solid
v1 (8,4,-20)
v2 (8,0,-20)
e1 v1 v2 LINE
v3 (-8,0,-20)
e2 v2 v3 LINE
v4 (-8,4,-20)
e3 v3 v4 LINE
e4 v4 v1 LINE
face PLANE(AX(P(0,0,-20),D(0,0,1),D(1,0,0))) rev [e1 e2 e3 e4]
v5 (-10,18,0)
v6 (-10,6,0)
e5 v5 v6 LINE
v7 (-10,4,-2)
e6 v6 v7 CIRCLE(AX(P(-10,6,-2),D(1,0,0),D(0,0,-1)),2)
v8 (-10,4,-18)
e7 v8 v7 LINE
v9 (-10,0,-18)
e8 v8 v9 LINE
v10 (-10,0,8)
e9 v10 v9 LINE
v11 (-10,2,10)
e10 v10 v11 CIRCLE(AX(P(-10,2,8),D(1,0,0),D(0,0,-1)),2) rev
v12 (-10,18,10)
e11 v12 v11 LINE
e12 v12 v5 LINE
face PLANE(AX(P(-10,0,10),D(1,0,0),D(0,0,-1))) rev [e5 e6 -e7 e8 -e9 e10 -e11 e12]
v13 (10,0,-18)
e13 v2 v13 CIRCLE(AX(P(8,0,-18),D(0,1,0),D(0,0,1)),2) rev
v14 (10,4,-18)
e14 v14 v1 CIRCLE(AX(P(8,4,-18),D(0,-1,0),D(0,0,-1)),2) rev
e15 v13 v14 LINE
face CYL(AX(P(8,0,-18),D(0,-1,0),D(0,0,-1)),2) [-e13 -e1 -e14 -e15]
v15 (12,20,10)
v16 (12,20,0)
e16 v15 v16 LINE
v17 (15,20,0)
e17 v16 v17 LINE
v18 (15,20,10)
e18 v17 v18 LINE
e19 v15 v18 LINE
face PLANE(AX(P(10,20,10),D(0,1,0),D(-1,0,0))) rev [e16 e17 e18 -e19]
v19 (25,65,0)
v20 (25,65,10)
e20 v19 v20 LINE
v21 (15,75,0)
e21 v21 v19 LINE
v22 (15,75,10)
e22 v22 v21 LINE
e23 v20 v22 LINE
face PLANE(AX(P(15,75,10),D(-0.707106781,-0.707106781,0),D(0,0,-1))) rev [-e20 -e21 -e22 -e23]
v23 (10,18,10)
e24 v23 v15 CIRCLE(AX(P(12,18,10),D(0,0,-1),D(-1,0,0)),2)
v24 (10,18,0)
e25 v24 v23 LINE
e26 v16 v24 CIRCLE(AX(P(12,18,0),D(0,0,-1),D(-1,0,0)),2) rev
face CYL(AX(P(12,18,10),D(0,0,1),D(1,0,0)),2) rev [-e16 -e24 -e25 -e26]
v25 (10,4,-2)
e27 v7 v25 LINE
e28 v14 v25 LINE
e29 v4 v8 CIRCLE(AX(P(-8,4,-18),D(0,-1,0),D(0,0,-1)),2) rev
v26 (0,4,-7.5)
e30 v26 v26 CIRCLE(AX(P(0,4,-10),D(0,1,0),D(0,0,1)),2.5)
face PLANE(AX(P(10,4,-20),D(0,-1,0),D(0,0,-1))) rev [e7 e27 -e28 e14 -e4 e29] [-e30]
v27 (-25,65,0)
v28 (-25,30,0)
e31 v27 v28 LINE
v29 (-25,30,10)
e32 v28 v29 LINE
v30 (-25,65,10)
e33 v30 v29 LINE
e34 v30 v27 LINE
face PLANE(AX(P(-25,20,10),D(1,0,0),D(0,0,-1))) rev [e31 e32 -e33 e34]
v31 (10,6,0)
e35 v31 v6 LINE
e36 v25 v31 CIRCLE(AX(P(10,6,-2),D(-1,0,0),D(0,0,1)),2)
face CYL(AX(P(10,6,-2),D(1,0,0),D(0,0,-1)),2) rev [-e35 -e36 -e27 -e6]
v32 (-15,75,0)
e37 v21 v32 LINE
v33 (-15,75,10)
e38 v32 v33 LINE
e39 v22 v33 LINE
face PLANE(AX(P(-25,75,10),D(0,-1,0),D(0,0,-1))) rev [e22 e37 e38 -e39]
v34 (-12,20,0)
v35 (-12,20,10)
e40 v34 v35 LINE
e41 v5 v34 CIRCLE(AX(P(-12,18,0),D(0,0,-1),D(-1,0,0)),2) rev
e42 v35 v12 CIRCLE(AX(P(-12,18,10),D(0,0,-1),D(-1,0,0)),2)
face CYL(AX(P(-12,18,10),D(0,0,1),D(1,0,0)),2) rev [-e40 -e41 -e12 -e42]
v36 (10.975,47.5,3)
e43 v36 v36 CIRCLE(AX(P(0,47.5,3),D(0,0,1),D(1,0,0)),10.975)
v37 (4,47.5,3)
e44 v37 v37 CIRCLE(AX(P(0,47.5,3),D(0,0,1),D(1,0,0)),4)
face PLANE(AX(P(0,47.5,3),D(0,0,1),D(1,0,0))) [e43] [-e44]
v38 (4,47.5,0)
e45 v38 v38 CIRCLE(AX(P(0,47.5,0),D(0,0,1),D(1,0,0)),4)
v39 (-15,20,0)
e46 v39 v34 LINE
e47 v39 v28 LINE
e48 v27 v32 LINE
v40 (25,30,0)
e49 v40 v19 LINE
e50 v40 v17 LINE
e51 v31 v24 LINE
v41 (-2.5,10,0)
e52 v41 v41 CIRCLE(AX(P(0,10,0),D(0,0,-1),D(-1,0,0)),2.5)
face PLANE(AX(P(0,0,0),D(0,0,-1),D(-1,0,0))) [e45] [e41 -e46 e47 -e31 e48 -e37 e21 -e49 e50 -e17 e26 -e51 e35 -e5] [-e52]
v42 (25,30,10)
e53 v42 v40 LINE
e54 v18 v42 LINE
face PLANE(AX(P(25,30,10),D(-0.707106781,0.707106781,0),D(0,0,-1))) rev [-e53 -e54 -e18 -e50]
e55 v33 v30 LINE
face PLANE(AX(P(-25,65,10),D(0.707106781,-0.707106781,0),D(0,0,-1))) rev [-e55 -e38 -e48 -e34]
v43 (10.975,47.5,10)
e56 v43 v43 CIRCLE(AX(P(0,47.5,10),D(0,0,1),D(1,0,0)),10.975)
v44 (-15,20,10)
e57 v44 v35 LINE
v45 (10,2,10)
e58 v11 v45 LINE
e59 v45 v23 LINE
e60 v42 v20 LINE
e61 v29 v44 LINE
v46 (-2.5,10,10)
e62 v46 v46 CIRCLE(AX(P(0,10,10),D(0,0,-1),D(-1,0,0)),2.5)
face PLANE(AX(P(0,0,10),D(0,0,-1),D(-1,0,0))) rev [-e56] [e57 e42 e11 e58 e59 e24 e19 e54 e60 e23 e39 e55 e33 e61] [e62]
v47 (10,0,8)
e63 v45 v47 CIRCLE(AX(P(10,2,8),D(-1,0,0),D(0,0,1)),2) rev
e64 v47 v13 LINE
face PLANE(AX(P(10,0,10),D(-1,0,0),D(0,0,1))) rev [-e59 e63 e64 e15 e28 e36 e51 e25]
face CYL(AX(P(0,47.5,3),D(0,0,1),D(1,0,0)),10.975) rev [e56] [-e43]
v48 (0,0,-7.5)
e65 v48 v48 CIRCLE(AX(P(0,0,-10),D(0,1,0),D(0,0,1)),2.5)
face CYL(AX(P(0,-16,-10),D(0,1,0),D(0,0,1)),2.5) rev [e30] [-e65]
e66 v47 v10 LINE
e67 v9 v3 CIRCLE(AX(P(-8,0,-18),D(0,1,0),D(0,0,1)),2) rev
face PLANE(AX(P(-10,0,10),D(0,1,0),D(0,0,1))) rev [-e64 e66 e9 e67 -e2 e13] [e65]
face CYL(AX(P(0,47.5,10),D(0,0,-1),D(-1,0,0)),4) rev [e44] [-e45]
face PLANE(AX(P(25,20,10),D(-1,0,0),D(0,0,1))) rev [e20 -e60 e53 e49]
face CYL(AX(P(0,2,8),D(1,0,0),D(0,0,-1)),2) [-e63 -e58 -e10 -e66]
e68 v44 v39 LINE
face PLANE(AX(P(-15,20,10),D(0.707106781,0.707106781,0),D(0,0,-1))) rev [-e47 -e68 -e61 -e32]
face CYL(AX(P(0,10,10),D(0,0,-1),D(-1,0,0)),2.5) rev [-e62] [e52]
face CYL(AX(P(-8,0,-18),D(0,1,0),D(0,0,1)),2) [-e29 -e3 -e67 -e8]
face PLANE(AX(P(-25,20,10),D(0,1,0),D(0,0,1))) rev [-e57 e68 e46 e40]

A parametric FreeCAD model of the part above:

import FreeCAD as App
import Part
import Sketcher


def edges_at(feature, points):
    """Names of the edges that pass closest to the given points."""
    edges = feature.Shape.Edges
    near = lambda p: min(range(len(edges)), key=lambda i: edges[i].distToShape(Part.Vertex(*p))[0])
    return sorted({f"Edge{near(p) + 1}" for p in points})


def add_polygon(sketch, points):
    """Adds a closed chain of lines whose ends are joined by coincident constraints."""
    first, n = sketch.GeometryCount, len(points)
    for a, b in zip(points, points[1:] + points[:1]):
        sketch.addGeometry(Part.LineSegment(App.Vector(*a, 0), App.Vector(*b, 0)), False)
    for i in range(n):
        sketch.addConstraint(Sketcher.Constraint("Coincident", first + i, 2, first + (i + 1) % n, 1))

doc = App.newDocument("Part")
body = doc.addObject("PartDesign::Body", "Body")

sketch1 = body.newObject("Sketcher::SketchObject", "Sketch")
sketch1.AttachmentSupport = (doc.getObject("XY_Plane"), [""])
sketch1.MapMode = "FlatFace"
add_polygon(sketch1, [(-25, 20), (-10, 20), (-10, 0), (10, 0), (10, 20), (25, 20), (25, 75), (-25, 75)])
sketch1.addGeometry(Part.Circle(App.Vector(0, 47.5, 0), App.Vector(0, 0, 1), 4), False)
sketch1.addConstraint(Sketcher.Constraint("Horizontal", 0))
sketch1.addConstraint(Sketcher.Constraint("Vertical", 1))
sketch1.addConstraint(Sketcher.Constraint("Horizontal", 2))
sketch1.addConstraint(Sketcher.Constraint("Vertical", 3))
sketch1.addConstraint(Sketcher.Constraint("Horizontal", 4))
sketch1.addConstraint(Sketcher.Constraint("Vertical", 5))
sketch1.addConstraint(Sketcher.Constraint("Horizontal", 6))
sketch1.addConstraint(Sketcher.Constraint("Vertical", 7))
sketch1.addConstraint(Sketcher.Constraint("Symmetric", 1, 2, 2, 2, -1, 1))
sketch1.addConstraint(Sketcher.Constraint("Symmetric", 4, 2, 7, 2, -2))
sketch1.addConstraint(Sketcher.Constraint("PointOnObject", 8, 3, -2))
sketch1.addConstraint(Sketcher.Constraint("Equal", 2, 1))
sketch1.addConstraint(Sketcher.Constraint("Diameter", 8, 8.0))
sketch1.addConstraint(Sketcher.Constraint("DistanceX", 0, 1, 0, 2, 15.0))
sketch1.addConstraint(Sketcher.Constraint("DistanceX", 2, 1, 2, 2, 20.0))
sketch1.addConstraint(Sketcher.Constraint("DistanceY", 5, 1, 5, 2, 55.0))
sketch1.addConstraint(Sketcher.Constraint("DistanceY", -1, 1, 8, 3, 47.5))
pad1 = body.newObject("PartDesign::Pad", "Pad")
pad1.Profile = sketch1
pad1.Length = 10
doc.recompute()

chamfer = body.newObject("PartDesign::Chamfer", "Chamfer")
chamfer.Base = (pad1, edges_at(pad1, [
    (25, 20, 5),
    (-25, 20, 5),
    (-25, 75, 5),
    (25, 75, 5),
]))
chamfer.Size = 10

sketch2 = body.newObject("Sketcher::SketchObject", "Sketch001")
sketch2.AttachmentSupport = (doc.getObject("XY_Plane"), [""])
sketch2.MapMode = "FlatFace"
sketch2.AttachmentOffset = App.Placement(App.Vector(0, 0, 10), App.Rotation())
sketch2.addGeometry(Part.Circle(App.Vector(0, 48, 0), App.Vector(0, 0, 1), 11), False)
sketch2.addConstraint(Sketcher.Constraint("PointOnObject", 0, 3, -2))
sketch2.addConstraint(Sketcher.Constraint("Diameter", 0, 21.95))
sketch2.addConstraint(Sketcher.Constraint("DistanceY", -1, 1, 0, 3, 47.5))
pocket1 = body.newObject("PartDesign::Pocket", "Pocket")
pocket1.Profile = sketch2
pocket1.Length = 7

sketch3 = body.newObject("Sketcher::SketchObject", "Sketch002")
sketch3.AttachmentSupport = (doc.getObject("XY_Plane"), [""])
sketch3.MapMode = "FlatFace"
add_polygon(sketch3, [(10, 4), (10, 0), (-10, 0), (-10, 4)])
sketch3.addConstraint(Sketcher.Constraint("Vertical", 0))
sketch3.addConstraint(Sketcher.Constraint("Horizontal", 1))
sketch3.addConstraint(Sketcher.Constraint("Vertical", 2))
sketch3.addConstraint(Sketcher.Constraint("Horizontal", 3))
sketch3.addConstraint(Sketcher.Constraint("Symmetric", 0, 2, 1, 2, -1, 1))
sketch3.addConstraint(Sketcher.Constraint("DistanceX", 1, 2, 1, 1, 20.0))
sketch3.addConstraint(Sketcher.Constraint("DistanceY", 0, 2, 0, 1, 4.0))
pad2 = body.newObject("PartDesign::Pad", "Pad001")
pad2.Profile = sketch3
pad2.Length = 20
pad2.Reversed = True
doc.recompute()

fillet = body.newObject("PartDesign::Fillet", "Fillet")
fillet.Base = (pad2, edges_at(pad2, [
    (10, 20, 5),
    (-10, 20, 5),
    (0, 0, 10),
    (0, 4, 0),
    (10, 2, -20),
    (-10, 2, -20),
]))
fillet.Radius = 2

sketch4 = body.newObject("Sketcher::SketchObject", "Sketch003")
sketch4.AttachmentSupport = (doc.getObject("XZ_Plane"), [""])
sketch4.MapMode = "FlatFace"
sketch4.AttachmentOffset = App.Placement(App.Vector(0, 0, -4), App.Rotation())
sketch4.addGeometry(Part.Circle(App.Vector(0, -10, 0), App.Vector(0, 0, 1), 2.5), False)
sketch4.addConstraint(Sketcher.Constraint("PointOnObject", 0, 3, -2))
sketch4.addConstraint(Sketcher.Constraint("Diameter", 0, 5.0))
sketch4.addConstraint(Sketcher.Constraint("DistanceY", 0, 3, -1, 1, 10.0))
pocket2 = body.newObject("PartDesign::Pocket", "Pocket001")
pocket2.Profile = sketch4
pocket2.Length = 20
pocket2.Reversed = True

sketch5 = body.newObject("Sketcher::SketchObject", "Sketch004")
sketch5.AttachmentSupport = (doc.getObject("XY_Plane"), [""])
sketch5.MapMode = "FlatFace"
sketch5.addGeometry(Part.Circle(App.Vector(0, 10, 0), App.Vector(0, 0, 1), 2.5), False)
sketch5.addConstraint(Sketcher.Constraint("PointOnObject", 0, 3, -2))
sketch5.addConstraint(Sketcher.Constraint("Diameter", 0, 5.0))
sketch5.addConstraint(Sketcher.Constraint("DistanceY", -1, 1, 0, 3, 10.0))
pocket3 = body.newObject("PartDesign::Pocket", "Pocket002")
pocket3.Profile = sketch5
pocket3.Type = "ThroughAll"
pocket3.Reversed = True

doc.recompute()
